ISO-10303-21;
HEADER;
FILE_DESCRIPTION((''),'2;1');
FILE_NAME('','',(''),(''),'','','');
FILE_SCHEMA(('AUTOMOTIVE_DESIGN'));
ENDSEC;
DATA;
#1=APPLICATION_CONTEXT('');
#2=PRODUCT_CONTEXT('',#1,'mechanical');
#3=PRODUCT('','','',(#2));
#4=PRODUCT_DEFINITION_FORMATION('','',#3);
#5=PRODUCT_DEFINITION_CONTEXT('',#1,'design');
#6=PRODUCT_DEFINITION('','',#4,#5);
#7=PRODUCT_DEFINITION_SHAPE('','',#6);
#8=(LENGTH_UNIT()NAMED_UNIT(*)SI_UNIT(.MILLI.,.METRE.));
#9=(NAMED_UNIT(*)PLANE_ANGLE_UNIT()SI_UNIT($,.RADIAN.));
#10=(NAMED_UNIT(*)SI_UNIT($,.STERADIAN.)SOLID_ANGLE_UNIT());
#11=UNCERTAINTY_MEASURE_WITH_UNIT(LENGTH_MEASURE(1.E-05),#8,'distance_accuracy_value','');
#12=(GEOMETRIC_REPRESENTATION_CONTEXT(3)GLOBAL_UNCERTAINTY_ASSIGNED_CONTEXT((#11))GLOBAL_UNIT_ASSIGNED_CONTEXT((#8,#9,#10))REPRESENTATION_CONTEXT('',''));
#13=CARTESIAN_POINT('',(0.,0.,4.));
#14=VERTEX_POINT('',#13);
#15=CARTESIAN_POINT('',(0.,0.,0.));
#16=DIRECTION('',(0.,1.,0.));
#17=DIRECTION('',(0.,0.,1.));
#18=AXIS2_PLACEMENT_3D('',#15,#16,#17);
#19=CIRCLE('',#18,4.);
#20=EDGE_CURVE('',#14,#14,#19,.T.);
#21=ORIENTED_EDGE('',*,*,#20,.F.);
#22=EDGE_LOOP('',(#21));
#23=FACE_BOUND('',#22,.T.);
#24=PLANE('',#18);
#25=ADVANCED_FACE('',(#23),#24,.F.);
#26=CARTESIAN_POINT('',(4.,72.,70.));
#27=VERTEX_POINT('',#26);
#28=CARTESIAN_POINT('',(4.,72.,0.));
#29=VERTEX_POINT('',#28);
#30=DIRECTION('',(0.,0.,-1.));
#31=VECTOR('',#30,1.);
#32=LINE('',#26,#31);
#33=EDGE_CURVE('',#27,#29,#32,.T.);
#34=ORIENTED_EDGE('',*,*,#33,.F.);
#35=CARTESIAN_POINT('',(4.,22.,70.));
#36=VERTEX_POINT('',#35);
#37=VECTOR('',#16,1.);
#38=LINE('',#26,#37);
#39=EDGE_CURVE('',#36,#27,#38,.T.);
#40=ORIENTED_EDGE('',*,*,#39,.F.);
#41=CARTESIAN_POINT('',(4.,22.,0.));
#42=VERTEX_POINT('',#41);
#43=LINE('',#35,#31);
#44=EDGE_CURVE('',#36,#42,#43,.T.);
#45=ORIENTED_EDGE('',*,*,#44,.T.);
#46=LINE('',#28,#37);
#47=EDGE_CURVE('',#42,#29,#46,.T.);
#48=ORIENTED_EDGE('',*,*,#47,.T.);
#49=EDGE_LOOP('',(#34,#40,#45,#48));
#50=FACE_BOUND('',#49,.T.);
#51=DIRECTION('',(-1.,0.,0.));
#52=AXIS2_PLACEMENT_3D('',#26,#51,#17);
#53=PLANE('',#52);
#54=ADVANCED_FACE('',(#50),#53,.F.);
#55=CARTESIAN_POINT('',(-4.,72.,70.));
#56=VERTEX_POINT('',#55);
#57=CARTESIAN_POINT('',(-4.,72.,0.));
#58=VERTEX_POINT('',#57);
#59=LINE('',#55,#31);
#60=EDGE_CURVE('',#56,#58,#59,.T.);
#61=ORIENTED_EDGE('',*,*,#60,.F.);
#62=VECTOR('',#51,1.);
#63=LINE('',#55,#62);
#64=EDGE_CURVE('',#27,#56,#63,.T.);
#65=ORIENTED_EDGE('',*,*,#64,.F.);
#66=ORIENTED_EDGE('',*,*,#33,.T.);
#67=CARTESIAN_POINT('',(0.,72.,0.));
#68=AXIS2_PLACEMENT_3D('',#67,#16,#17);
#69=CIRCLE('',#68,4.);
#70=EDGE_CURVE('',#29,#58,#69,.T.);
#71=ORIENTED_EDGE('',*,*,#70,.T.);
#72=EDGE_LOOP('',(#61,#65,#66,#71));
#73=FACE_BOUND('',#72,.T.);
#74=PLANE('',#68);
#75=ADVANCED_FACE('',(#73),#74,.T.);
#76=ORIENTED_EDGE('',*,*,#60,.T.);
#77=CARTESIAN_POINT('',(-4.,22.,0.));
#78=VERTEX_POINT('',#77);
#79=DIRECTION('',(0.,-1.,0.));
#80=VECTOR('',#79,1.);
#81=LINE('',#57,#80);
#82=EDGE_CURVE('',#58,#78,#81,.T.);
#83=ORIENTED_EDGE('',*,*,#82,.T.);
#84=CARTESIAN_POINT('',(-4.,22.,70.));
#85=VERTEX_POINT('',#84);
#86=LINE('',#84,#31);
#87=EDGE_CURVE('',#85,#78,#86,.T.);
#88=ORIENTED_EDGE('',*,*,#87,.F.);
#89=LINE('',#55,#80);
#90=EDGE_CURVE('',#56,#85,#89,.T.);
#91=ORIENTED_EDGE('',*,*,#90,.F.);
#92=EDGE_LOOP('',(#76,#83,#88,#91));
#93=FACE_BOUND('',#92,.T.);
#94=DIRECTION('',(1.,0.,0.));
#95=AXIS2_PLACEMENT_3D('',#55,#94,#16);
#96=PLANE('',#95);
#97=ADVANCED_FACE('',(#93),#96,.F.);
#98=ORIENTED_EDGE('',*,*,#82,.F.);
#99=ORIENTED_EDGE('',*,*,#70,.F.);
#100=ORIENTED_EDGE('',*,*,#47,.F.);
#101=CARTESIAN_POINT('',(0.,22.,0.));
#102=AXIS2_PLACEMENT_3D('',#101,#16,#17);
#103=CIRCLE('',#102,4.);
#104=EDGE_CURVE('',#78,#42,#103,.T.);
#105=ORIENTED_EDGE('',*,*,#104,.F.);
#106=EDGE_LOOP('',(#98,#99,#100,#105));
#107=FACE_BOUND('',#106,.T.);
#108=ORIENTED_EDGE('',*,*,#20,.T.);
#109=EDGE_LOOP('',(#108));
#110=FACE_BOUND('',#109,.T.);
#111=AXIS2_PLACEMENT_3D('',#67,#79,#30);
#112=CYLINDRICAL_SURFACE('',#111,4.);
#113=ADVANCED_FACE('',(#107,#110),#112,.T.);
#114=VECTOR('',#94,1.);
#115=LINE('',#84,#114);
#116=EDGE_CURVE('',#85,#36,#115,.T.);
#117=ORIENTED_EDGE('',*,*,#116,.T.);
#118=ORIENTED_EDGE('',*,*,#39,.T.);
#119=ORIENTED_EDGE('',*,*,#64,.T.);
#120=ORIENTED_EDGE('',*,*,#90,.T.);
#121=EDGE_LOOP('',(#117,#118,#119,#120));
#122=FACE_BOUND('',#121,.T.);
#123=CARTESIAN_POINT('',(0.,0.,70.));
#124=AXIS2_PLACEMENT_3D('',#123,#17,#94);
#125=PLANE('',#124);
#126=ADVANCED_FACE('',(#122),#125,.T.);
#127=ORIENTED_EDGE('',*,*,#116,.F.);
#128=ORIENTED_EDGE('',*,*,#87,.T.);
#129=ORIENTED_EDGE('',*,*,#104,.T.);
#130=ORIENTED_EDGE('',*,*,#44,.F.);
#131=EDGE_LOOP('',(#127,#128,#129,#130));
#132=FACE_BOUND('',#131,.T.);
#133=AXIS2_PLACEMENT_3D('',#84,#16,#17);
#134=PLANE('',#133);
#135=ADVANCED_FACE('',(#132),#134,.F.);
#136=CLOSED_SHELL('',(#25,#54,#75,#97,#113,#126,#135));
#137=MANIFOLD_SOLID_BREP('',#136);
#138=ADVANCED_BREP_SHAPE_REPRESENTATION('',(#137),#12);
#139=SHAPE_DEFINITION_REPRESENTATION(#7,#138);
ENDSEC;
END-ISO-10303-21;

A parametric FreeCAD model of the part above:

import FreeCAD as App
import Part
import Sketcher

V = App.Vector


def add_polygon(sketch, points):
    """Adds a closed chain of lines whose ends are joined by coincident constraints."""
    first, n = sketch.GeometryCount, len(points)
    for a, b in zip(points, points[1:] + points[:1]):
        sketch.addGeometry(Part.LineSegment(App.Vector(*a, 0), App.Vector(*b, 0)), False)
    for i in range(n):
        sketch.addConstraint(Sketcher.Constraint("Coincident", first + i, 2, first + (i + 1) % n, 1))

doc = App.newDocument("Part")
body = doc.addObject("PartDesign::Body", "Body")

sketch1 = body.newObject("Sketcher::SketchObject", "Sketch")
sketch1.AttachmentSupport = (doc.getObject("XZ_Plane"), [""])
sketch1.MapMode = "FlatFace"
sketch1.addGeometry(Part.Circle(V(0, 0, 0), V(0, 0, 1), 4), False)
sketch1.addConstraint([
    Sketcher.Constraint("Coincident", 0, 3, -1, 1),
    Sketcher.Constraint("Diameter", 0, 8.0),
])
pad1 = body.newObject("PartDesign::Pad", "Pad")
pad1.Profile = sketch1
pad1.Length = 72
pad1.Reversed = True

sketch2 = body.newObject("Sketcher::SketchObject", "Sketch001")
sketch2.AttachmentSupport = (doc.getObject("XY_Plane"), [""])
sketch2.MapMode = "FlatFace"
add_polygon(sketch2, [(-4, 72), (-4, 22), (4, 22), (4, 72)])
sketch2.addConstraint([
    Sketcher.Constraint("Vertical", 0),
    Sketcher.Constraint("Horizontal", 1),
    Sketcher.Constraint("Vertical", 2),
    Sketcher.Constraint("Horizontal", 3),
    Sketcher.Constraint("DistanceX", 1, 1, 1, 2, 8.0),
    Sketcher.Constraint("DistanceY", 0, 2, 0, 1, 50.0),
    Sketcher.Constraint("DistanceX", 0, 2, -1, 1, 4.0),
    Sketcher.Constraint("DistanceY", -1, 1, 0, 2, 22.0),
])
pad2 = body.newObject("PartDesign::Pad", "Pad001")
pad2.Profile = sketch2
pad2.Length = 70

doc.recompute()
